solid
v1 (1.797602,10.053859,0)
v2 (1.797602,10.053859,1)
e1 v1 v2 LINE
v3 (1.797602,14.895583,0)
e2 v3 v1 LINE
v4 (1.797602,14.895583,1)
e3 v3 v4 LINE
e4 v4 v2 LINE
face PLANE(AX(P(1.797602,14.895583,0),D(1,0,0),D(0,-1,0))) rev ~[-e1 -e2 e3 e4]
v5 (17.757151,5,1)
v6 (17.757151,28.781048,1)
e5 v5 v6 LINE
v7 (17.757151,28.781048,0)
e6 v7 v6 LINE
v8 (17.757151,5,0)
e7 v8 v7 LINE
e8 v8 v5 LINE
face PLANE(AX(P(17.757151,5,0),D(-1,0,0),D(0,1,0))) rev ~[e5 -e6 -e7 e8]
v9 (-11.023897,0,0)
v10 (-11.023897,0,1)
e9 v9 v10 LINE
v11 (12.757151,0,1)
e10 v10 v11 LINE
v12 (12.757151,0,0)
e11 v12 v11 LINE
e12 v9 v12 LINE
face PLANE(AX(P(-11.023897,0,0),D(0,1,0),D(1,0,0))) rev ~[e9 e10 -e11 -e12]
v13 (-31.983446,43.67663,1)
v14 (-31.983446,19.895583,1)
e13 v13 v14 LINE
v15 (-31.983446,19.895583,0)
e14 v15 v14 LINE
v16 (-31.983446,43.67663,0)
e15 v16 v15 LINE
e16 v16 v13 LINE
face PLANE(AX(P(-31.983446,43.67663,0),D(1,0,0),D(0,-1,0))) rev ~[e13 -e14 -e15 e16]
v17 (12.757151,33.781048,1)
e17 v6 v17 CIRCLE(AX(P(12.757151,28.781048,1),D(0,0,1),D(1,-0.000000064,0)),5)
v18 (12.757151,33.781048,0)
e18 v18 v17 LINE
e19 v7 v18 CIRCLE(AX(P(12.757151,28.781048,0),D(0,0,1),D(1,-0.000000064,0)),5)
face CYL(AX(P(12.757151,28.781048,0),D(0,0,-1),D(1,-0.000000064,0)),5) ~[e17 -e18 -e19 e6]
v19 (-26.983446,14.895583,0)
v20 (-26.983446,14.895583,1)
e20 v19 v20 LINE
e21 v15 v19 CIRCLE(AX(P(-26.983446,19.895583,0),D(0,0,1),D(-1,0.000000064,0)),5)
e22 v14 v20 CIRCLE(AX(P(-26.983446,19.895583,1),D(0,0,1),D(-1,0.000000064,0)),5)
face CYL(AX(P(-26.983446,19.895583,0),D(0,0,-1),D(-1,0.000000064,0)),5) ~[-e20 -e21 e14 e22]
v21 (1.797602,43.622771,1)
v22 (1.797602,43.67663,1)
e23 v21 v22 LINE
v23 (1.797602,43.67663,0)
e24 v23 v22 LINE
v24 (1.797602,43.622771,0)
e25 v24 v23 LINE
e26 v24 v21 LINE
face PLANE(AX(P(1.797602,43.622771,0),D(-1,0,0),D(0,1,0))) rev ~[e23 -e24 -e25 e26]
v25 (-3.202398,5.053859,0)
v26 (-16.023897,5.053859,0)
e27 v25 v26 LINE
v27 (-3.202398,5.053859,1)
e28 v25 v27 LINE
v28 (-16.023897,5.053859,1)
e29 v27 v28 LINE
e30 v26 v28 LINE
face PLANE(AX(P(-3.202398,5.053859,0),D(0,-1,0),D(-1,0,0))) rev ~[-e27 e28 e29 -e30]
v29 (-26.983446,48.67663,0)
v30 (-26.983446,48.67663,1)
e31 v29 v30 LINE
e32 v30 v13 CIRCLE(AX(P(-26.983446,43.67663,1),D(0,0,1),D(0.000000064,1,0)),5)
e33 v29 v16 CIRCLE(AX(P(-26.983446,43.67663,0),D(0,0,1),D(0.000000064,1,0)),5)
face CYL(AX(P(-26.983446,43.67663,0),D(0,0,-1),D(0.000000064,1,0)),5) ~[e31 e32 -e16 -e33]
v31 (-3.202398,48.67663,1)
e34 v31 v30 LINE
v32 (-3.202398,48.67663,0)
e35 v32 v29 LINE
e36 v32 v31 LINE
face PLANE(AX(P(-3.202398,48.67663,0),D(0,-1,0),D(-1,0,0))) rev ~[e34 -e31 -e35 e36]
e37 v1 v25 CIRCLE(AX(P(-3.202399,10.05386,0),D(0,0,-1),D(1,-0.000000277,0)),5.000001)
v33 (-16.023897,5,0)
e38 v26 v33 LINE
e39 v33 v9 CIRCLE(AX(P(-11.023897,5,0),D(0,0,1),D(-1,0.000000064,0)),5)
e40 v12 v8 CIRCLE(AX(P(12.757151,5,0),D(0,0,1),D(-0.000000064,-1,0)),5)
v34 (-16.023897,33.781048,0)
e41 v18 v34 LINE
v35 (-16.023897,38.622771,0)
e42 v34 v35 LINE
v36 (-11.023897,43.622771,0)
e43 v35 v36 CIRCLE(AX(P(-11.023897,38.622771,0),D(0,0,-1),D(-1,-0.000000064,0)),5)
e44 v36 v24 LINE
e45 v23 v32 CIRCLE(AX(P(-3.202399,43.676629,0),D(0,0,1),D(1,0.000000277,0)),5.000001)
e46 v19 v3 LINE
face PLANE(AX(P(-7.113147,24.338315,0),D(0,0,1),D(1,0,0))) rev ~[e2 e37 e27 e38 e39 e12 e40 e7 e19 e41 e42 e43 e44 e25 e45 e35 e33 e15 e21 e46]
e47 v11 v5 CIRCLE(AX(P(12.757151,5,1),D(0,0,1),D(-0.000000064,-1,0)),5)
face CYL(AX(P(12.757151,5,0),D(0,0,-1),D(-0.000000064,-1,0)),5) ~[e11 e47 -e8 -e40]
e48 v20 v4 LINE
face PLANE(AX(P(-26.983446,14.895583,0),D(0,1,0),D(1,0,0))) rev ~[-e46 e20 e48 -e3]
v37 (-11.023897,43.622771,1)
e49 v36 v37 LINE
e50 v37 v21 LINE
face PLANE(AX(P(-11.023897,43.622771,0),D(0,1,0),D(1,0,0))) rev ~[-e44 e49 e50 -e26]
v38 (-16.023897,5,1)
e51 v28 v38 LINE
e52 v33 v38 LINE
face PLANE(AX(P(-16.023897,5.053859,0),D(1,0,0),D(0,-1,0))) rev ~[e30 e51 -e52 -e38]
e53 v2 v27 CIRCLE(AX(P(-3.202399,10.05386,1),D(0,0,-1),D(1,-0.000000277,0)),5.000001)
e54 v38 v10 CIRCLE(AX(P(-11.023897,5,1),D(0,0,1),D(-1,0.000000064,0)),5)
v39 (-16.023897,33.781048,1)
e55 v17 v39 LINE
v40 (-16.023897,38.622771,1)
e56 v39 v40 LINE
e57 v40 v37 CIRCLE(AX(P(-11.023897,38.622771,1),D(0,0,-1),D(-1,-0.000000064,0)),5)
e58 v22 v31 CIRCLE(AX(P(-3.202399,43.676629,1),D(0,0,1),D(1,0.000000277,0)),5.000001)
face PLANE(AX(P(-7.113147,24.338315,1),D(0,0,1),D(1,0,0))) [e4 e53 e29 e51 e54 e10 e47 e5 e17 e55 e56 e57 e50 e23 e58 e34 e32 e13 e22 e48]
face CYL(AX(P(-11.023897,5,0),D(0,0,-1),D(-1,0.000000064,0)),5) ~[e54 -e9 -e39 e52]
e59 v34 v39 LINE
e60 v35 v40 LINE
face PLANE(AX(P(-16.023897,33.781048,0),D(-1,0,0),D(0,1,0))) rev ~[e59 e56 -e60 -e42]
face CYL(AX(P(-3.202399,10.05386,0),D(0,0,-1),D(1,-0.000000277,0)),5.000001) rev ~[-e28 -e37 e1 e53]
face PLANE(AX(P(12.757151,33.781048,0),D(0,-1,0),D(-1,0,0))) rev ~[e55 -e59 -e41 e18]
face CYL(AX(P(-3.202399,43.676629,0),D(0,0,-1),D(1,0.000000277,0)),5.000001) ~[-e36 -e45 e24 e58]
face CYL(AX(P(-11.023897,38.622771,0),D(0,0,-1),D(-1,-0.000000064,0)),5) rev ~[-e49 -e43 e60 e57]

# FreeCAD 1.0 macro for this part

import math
import FreeCAD as App
import Part
import Sketcher

doc = App.newDocument("Part")
body = doc.addObject("PartDesign::Body", "Body")

# Sketch on XY plane
sketch1 = body.newObject("Sketcher::SketchObject", "Sketch")
sketch1.AttachmentSupport = (doc.getObject("XY_Plane"), [""])
sketch1.MapMode = "FlatFace"
sketch1.addGeometry([
    Part.ArcOfCircle(Part.Circle(App.Vector(-3.2, 43.68, 0), App.Vector(0, 0, 1), 5), math.radians(0), math.radians(90)),  # 0
    Part.LineSegment(App.Vector(-3.2, 48.68, 0), App.Vector(-26.98, 48.68, 0)),  # 1
    Part.ArcOfCircle(Part.Circle(App.Vector(-26.98, 43.68, 0), App.Vector(0, 0, 1), 5), math.radians(90), math.radians(180)),  # 2
    Part.LineSegment(App.Vector(-31.98, 43.68, 0), App.Vector(-31.98, 19.9, 0)),  # 3
    Part.ArcOfCircle(Part.Circle(App.Vector(-26.98, 19.9, 0), App.Vector(0, 0, 1), 5), math.radians(180), math.radians(270)),  # 4
    Part.LineSegment(App.Vector(-26.98, 14.9, 0), App.Vector(1.8, 14.9, 0)),  # 5
    Part.LineSegment(App.Vector(1.8, 14.9, 0), App.Vector(1.8, 10.05, 0)),  # 6
    Part.ArcOfCircle(Part.Circle(App.Vector(-3.2, 10.05, 0), App.Vector(0, 0, 1), 5), math.radians(-90), math.radians(0)),  # 7
    Part.LineSegment(App.Vector(-3.2, 5.05, 0), App.Vector(-16.02, 5.05, 0)),  # 8
    Part.LineSegment(App.Vector(-16.02, 5.05, 0), App.Vector(-16.02, 5, 0)),  # 9
    Part.ArcOfCircle(Part.Circle(App.Vector(-11.02, 5, 0), App.Vector(0, 0, 1), 5), math.radians(180), math.radians(270)),  # 10
    Part.LineSegment(App.Vector(-11.02, 0, 0), App.Vector(12.76, 0, 0)),  # 11
    Part.ArcOfCircle(Part.Circle(App.Vector(12.76, 5, 0), App.Vector(0, 0, 1), 5), math.radians(-90), math.radians(0)),  # 12
    Part.LineSegment(App.Vector(17.76, 5, 0), App.Vector(17.76, 28.78, 0)),  # 13
    Part.ArcOfCircle(Part.Circle(App.Vector(12.76, 28.78, 0), App.Vector(0, 0, 1), 5), math.radians(0), math.radians(90)),  # 14
    Part.LineSegment(App.Vector(12.76, 33.78, 0), App.Vector(-16.02, 33.78, 0)),  # 15
    Part.LineSegment(App.Vector(-16.02, 33.78, 0), App.Vector(-16.02, 38.62, 0)),  # 16
    Part.ArcOfCircle(Part.Circle(App.Vector(-11.02, 38.62, 0), App.Vector(0, 0, 1), 5), math.radians(90), math.radians(180)),  # 17
    Part.LineSegment(App.Vector(-11.02, 43.62, 0), App.Vector(1.8, 43.62, 0)),  # 18
    Part.LineSegment(App.Vector(1.8, 43.62, 0), App.Vector(1.8, 43.68, 0)),  # 19
], False)
sketch1.addConstraint([
    Sketcher.Constraint("Tangent", 0, 2, 1, 1),
    Sketcher.Constraint("Tangent", 1, 2, 2, 1),
    Sketcher.Constraint("Tangent", 2, 2, 3, 1),
    Sketcher.Constraint("Tangent", 3, 2, 4, 1),
    Sketcher.Constraint("Tangent", 4, 2, 5, 1),
    Sketcher.Constraint("Coincident", 5, 2, 6, 1),
    Sketcher.Constraint("Tangent", 6, 2, 7, 2),
    Sketcher.Constraint("Tangent", 7, 1, 8, 1),
    Sketcher.Constraint("Coincident", 8, 2, 9, 1),
    Sketcher.Constraint("Tangent", 9, 2, 10, 1),
    Sketcher.Constraint("Tangent", 10, 2, 11, 1),
    Sketcher.Constraint("Tangent", 11, 2, 12, 1),
    Sketcher.Constraint("Tangent", 12, 2, 13, 1),
    Sketcher.Constraint("Tangent", 13, 2, 14, 1),
    Sketcher.Constraint("Tangent", 14, 2, 15, 1),
    Sketcher.Constraint("Coincident", 15, 2, 16, 1),
    Sketcher.Constraint("Tangent", 16, 2, 17, 2),
    Sketcher.Constraint("Tangent", 17, 1, 18, 1),
    Sketcher.Constraint("Coincident", 18, 2, 19, 1),
    Sketcher.Constraint("Tangent", 19, 2, 0, 1),
    Sketcher.Constraint("Horizontal", 1),
    Sketcher.Constraint("Vertical", 3),
    Sketcher.Constraint("Horizontal", 5),
    Sketcher.Constraint("Vertical", 6),
    Sketcher.Constraint("Horizontal", 8),
    Sketcher.Constraint("Vertical", 9),
    Sketcher.Constraint("Horizontal", 11),
    Sketcher.Constraint("Vertical", 13),
    Sketcher.Constraint("Horizontal", 15),
    Sketcher.Constraint("Vertical", 16),
    Sketcher.Constraint("Horizontal", 18),
    Sketcher.Constraint("Vertical", 19),
    Sketcher.Constraint("Equal", 0, 2),
    Sketcher.Constraint("Equal", 2, 4),
    Sketcher.Constraint("Equal", 4, 7),
    Sketcher.Constraint("Equal", 7, 10),
    Sketcher.Constraint("Equal", 10, 12),
    Sketcher.Constraint("Equal", 12, 14),
    Sketcher.Constraint("Equal", 14, 17),
    Sketcher.Constraint("PointOnObject", 10, 2, -1),
    Sketcher.Constraint("Vertical", 0, 3, 7, 3),
    Sketcher.Constraint("Vertical", 10, 3, 17, 3),
    Sketcher.Constraint("Equal", 1, 11),
    Sketcher.Constraint("Equal", 11, 3),
    Sketcher.Constraint("Equal", 3, 13),
    Sketcher.Constraint("Equal", 6, 16),
    Sketcher.Constraint("Radius", 0, 5.000001),
    Sketcher.Constraint("DistanceX", 8, 2, 8, 1, 12.821499),
    Sketcher.Constraint("DistanceX", 1, 2, 1, 1, 23.781048),
    Sketcher.Constraint("DistanceY", 9, 2, 9, 1, 0.053859),
    Sketcher.Constraint("DistanceX", 0, 3, -1, 1, 3.202399),
    Sketcher.Constraint("DistanceY", 6, 2, 6, 1, 4.841724),
])
pad1 = body.newObject("PartDesign::Pad", "Pad")
pad1.Profile = sketch1
pad1.Length = 1

doc.recompute()
